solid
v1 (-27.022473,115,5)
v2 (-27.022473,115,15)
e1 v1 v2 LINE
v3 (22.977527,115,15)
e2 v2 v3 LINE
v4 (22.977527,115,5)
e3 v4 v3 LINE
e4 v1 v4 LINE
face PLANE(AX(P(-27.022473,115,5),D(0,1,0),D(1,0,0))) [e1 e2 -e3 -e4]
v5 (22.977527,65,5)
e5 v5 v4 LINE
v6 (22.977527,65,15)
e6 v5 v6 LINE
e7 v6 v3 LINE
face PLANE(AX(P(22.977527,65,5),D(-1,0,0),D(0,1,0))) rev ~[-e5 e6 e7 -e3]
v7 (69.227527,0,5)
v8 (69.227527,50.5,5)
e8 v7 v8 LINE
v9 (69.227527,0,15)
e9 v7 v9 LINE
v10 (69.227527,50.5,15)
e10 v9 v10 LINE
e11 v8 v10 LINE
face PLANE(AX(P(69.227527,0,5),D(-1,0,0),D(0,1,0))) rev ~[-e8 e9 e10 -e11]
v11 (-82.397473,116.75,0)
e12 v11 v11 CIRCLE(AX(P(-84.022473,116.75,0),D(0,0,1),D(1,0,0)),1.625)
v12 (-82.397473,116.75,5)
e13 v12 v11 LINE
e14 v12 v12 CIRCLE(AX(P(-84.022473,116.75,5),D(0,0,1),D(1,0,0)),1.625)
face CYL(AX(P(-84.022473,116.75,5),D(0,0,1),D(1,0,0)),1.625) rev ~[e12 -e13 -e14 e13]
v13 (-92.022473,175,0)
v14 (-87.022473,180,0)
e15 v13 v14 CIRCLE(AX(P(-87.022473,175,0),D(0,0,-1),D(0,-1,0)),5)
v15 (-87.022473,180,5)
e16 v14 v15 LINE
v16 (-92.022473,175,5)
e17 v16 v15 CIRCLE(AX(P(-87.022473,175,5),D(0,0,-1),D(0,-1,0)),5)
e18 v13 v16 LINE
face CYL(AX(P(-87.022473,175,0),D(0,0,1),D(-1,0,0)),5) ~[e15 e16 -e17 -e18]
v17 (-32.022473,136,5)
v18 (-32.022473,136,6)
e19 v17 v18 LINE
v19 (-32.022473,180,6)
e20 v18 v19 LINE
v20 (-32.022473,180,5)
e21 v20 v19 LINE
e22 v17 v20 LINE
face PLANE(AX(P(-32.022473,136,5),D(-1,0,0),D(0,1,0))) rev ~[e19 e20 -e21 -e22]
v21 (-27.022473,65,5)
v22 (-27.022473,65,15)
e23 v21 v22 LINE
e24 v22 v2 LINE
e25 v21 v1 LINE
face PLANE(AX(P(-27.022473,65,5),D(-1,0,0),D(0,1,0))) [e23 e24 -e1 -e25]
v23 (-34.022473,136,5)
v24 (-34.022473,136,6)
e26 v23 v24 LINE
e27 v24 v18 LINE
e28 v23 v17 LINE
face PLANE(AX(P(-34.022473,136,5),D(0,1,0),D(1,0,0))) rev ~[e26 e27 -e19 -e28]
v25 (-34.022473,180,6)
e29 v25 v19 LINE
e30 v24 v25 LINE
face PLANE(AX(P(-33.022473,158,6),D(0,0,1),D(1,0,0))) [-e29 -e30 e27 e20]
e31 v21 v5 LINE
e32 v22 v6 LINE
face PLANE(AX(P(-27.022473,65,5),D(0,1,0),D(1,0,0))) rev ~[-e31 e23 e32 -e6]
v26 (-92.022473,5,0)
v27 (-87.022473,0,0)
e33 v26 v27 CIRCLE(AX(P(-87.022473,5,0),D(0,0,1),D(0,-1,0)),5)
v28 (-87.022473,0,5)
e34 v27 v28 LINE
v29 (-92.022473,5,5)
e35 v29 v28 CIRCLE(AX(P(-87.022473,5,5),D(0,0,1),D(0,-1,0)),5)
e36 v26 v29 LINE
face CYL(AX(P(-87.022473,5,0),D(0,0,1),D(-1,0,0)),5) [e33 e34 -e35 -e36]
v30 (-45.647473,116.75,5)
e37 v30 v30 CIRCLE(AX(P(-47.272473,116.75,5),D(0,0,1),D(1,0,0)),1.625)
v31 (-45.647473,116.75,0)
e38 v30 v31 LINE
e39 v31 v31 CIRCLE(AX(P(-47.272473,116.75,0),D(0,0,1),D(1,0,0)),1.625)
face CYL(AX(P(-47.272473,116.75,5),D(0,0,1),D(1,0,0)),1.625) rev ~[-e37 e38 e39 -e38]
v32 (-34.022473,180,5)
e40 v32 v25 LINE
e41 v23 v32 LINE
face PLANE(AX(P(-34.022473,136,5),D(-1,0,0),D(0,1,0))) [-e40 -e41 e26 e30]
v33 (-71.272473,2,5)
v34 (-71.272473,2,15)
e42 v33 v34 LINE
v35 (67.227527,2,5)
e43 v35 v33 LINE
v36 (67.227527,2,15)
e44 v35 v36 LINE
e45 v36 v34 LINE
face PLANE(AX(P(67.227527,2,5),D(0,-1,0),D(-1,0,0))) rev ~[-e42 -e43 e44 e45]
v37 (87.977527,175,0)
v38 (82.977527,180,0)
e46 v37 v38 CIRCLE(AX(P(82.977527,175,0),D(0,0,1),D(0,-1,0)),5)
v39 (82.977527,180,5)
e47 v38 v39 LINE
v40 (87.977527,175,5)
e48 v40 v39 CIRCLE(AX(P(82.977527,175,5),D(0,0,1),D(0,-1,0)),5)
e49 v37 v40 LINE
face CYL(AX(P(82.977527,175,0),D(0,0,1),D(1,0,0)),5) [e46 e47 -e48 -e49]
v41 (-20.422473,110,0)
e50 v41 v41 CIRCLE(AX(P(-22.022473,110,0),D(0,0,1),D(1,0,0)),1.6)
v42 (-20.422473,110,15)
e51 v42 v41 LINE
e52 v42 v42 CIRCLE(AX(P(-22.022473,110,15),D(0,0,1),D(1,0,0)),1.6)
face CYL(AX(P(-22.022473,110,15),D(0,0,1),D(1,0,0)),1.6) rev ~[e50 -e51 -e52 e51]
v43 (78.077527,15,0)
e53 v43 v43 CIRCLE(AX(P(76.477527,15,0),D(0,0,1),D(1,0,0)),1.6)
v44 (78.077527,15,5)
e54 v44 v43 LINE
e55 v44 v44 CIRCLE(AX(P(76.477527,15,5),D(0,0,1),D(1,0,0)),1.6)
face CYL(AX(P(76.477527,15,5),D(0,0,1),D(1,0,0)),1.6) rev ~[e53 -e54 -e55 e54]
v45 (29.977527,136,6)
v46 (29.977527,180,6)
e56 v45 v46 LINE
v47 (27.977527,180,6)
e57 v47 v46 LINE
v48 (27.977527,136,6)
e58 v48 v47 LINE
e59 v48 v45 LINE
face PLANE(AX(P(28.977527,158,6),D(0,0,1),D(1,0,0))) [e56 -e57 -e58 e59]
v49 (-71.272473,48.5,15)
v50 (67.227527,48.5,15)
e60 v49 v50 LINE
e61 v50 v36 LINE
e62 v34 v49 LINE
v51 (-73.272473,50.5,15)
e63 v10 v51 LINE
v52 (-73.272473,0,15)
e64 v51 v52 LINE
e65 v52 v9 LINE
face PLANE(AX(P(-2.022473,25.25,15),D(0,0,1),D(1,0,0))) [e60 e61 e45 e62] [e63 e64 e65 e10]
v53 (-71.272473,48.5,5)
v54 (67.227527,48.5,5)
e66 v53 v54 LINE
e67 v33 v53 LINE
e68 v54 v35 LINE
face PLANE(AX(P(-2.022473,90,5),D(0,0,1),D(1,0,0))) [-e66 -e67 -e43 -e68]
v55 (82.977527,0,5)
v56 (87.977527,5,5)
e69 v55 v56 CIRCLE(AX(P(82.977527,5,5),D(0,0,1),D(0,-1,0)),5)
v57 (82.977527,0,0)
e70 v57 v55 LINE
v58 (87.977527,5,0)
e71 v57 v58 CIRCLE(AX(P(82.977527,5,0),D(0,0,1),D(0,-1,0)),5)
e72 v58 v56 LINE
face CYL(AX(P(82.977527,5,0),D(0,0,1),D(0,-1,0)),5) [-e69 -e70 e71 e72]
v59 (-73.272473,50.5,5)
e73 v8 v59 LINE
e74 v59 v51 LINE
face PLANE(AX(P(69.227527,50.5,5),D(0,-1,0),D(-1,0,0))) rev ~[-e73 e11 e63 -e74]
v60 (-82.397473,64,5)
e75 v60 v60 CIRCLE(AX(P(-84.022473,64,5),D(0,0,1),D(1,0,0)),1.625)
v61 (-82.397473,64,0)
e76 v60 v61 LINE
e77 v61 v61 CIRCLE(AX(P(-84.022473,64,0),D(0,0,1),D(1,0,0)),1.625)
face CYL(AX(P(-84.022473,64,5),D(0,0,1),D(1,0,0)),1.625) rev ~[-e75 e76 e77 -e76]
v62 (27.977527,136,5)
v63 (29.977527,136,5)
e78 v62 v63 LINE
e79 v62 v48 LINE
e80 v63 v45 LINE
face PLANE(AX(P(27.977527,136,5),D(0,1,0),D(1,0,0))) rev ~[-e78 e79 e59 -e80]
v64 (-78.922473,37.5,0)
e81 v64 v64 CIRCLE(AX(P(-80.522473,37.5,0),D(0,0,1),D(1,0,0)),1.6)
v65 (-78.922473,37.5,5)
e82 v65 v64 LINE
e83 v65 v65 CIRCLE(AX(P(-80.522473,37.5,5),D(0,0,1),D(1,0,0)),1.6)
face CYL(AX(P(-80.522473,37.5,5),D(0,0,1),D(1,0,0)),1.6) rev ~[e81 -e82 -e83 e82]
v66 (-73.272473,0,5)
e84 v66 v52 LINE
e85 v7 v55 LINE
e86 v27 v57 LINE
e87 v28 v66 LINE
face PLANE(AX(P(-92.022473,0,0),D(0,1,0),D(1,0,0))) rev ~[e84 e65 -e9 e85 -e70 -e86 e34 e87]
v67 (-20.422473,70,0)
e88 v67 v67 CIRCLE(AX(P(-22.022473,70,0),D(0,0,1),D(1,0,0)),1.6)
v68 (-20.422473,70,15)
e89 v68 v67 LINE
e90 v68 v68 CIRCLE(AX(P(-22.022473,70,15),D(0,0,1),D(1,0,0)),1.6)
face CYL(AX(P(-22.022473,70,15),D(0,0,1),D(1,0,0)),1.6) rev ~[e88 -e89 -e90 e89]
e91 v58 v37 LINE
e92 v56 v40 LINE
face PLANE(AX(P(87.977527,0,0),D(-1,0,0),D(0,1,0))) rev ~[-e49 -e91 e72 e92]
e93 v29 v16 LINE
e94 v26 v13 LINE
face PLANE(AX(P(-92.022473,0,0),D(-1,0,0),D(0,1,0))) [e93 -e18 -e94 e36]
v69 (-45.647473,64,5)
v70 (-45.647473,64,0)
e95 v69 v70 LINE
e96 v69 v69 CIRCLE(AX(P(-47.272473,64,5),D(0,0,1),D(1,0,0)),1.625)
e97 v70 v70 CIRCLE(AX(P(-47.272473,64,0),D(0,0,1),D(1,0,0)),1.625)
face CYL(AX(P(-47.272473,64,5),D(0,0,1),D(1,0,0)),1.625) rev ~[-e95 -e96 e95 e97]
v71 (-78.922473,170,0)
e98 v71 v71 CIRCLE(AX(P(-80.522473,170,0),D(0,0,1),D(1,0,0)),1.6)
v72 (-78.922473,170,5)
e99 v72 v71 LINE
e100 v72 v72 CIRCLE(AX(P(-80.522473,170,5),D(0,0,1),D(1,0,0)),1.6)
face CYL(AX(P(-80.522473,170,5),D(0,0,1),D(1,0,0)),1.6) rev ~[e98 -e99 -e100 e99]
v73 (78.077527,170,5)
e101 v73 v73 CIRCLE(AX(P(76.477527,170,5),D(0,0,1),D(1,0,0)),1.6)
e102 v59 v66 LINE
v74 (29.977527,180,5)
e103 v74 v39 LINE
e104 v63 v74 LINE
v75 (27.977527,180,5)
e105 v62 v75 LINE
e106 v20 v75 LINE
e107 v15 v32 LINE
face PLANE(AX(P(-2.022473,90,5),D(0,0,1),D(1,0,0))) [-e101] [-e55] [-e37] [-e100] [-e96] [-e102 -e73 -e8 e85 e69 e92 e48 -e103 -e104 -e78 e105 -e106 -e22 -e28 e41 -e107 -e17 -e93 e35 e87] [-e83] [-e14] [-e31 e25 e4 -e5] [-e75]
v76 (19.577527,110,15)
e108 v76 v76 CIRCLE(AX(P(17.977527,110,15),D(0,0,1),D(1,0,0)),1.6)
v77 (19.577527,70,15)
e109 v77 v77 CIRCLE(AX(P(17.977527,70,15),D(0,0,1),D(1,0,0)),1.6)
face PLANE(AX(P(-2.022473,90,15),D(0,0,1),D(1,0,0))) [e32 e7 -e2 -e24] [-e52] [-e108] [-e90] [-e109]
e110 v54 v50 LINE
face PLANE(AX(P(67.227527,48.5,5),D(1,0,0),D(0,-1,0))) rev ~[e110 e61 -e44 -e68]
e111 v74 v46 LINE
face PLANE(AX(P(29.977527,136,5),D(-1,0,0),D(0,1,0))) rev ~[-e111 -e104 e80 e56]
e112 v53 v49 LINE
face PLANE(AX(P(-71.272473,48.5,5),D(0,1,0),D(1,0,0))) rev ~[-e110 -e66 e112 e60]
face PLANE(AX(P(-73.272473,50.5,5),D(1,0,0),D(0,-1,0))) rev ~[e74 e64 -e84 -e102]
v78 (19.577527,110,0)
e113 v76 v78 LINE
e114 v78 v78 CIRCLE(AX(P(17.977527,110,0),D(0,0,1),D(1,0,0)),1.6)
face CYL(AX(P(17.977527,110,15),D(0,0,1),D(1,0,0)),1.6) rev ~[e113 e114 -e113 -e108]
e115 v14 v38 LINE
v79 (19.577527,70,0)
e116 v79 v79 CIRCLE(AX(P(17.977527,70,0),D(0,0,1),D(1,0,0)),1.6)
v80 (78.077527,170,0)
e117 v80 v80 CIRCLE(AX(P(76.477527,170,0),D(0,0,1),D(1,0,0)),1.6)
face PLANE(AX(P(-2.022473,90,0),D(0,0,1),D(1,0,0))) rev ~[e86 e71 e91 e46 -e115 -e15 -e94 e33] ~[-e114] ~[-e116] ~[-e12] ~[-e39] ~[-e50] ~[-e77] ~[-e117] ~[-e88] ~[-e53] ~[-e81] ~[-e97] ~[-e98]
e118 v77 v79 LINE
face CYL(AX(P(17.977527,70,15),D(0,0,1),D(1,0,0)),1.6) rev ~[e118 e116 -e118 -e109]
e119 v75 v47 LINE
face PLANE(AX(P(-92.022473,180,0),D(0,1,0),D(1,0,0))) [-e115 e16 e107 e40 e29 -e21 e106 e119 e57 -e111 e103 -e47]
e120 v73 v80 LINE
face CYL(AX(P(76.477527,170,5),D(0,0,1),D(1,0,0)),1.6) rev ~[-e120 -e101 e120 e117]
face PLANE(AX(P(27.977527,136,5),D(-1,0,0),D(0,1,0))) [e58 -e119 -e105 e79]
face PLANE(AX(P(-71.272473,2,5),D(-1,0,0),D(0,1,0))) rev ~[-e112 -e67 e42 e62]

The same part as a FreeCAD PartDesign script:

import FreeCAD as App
import Part
import Sketcher
from FreeCAD import Vector
Q = App.Units.Quantity


def edges_at(feature, points):
    """Names of the edges that pass closest to the given points."""
    edges = feature.Shape.Edges
    near = lambda p: min(range(len(edges)), key=lambda i: edges[i].distToShape(Part.Vertex(*p))[0])
    return sorted({f"Edge{near(p) + 1}" for p in points})

doc = App.newDocument("Part")
body = doc.addObject("PartDesign::Body", "Body")

# Sketch on XY plane
sketch1 = body.newObject("Sketcher::SketchObject", "Sketch")
sketch1.AttachmentSupport = (doc.getObject("XY_Plane"), [""])
sketch1.MapMode = "FlatFace"
sketch1.addGeometry([
    Part.LineSegment(Vector(-92, 180, 0), Vector(-92, 0, 0)),
    Part.LineSegment(Vector(-92, 0, 0), Vector(88, 0, 0)),
    Part.LineSegment(Vector(88, 0, 0), Vector(88, 180, 0)),
    Part.LineSegment(Vector(88, 180, 0), Vector(-92, 180, 0)),
], False)
sketch1.addConstraint([
    Sketcher.Constraint("Coincident", 0, 2, 1, 1),
    Sketcher.Constraint("Coincident", 1, 2, 2, 1),
    Sketcher.Constraint("Coincident", 2, 2, 3, 1),
    Sketcher.Constraint("Coincident", 3, 2, 0, 1),
    Sketcher.Constraint("Vertical", 0),
    Sketcher.Constraint("Horizontal", 1),
    Sketcher.Constraint("Vertical", 2),
    Sketcher.Constraint("Horizontal", 3),
    Sketcher.Constraint("PointOnObject", 0, 2, -1),
    Sketcher.Constraint("Equal", 3, 0),
    Sketcher.Constraint("DistanceX", 1, 1, 1, 2, Q("180 mm")),
    Sketcher.Constraint("DistanceX", 0, 2, -1, 1, Q("92.022473 mm")),
])
pad1 = body.newObject("PartDesign::Pad", "Pad")
pad1.Profile = sketch1
pad1.Length = 5
doc.recompute()

fillet = body.newObject("PartDesign::Fillet", "Fillet")
fillet.Base = (pad1, edges_at(pad1, [
    (87.978, 0, 2.5),
    (-92.022, 180, 2.5),
    (-92.022, 0, 2.5),
    (87.978, 180, 2.5),
]))
fillet.Radius = 5

# Sketch on XY plane
sketch2 = body.newObject("Sketcher::SketchObject", "Sketch001")
sketch2.AttachmentSupport = (doc.getObject("XY_Plane"), [""])
sketch2.MapMode = "FlatFace"
sketch2.AttachmentOffset = App.Placement(Vector(0, 0, 5), App.Rotation())
sketch2.addGeometry([
    Part.Circle(Vector(-80.5, 170, 0), Vector(0, 0, 1), 1.6),
    Part.Circle(Vector(76.5, 170, 0), Vector(0, 0, 1), 1.6),
    Part.Circle(Vector(76.5, 15, 0), Vector(0, 0, 1), 1.6),
    Part.Circle(Vector(-80.5, 37.5, 0), Vector(0, 0, 1), 1.6),
], False)
sketch2.addConstraint([
    Sketcher.Constraint("Equal", 0, 1),
    Sketcher.Constraint("Equal", 1, 2),
    Sketcher.Constraint("Equal", 2, 3),
    Sketcher.Constraint("Horizontal", 0, 3, 1, 3),
    Sketcher.Constraint("Vertical", 1, 3, 2, 3),
    Sketcher.Constraint("Vertical", 0, 3, 3, 3),
    Sketcher.Constraint("Diameter", 0, Q("3.2 mm")),
    Sketcher.Constraint("DistanceY", -1, 1, 0, 3, Q("170 mm")),
    Sketcher.Constraint("DistanceY", -1, 1, 2, 3, Q("15 mm")),
    Sketcher.Constraint("DistanceX", 0, 3, 1, 3, Q("157 mm")),
    Sketcher.Constraint("DistanceY", -1, 1, 3, 3, Q("37.5 mm")),
    Sketcher.Constraint("DistanceX", 0, 3, -1, 1, Q("80.522473 mm")),
])
pocket1 = body.newObject("PartDesign::Pocket", "Pocket")
pocket1.Profile = sketch2
pocket1.Length = 5

# Sketch on XY plane
sketch3 = body.newObject("Sketcher::SketchObject", "Sketch002")
sketch3.AttachmentSupport = (doc.getObject("XY_Plane"), [""])
sketch3.MapMode = "FlatFace"
sketch3.AttachmentOffset = App.Placement(Vector(0, 0, 5), App.Rotation())
sketch3.addGeometry([
    Part.Circle(Vector(-84, 64, 0), Vector(0, 0, 1), 1.6),
    Part.Circle(Vector(-84, 116.8, 0), Vector(0, 0, 1), 1.6),
    Part.Circle(Vector(-47.3, 64, 0), Vector(0, 0, 1), 1.6),
    Part.Circle(Vector(-47.3, 116.8, 0), Vector(0, 0, 1), 1.6),
], False)
sketch3.addConstraint([
    Sketcher.Constraint("Equal", 0, 1),
    Sketcher.Constraint("Equal", 1, 2),
    Sketcher.Constraint("Equal", 2, 3),
    Sketcher.Constraint("Horizontal", 0, 3, 2, 3),
    Sketcher.Constraint("Horizontal", 1, 3, 3, 3),
    Sketcher.Constraint("Vertical", 0, 3, 1, 3),
    Sketcher.Constraint("Vertical", 2, 3, 3, 3),
    Sketcher.Constraint("Diameter", 0, Q("3.25 mm")),
    Sketcher.Constraint("DistanceY", -1, 1, 0, 3, Q("64 mm")),
    Sketcher.Constraint("DistanceY", -1, 1, 1, 3, Q("116.75 mm")),
    Sketcher.Constraint("DistanceX", 0, 3, 2, 3, Q("36.75 mm")),
    Sketcher.Constraint("DistanceX", 0, 3, -1, 1, Q("84.022473 mm")),
])
pocket2 = body.newObject("PartDesign::Pocket", "Pocket001")
pocket2.Profile = sketch3
pocket2.Length = 5

# Sketch on XY plane
sketch4 = body.newObject("Sketcher::SketchObject", "Sketch003")
sketch4.AttachmentSupport = (doc.getObject("XY_Plane"), [""])
sketch4.MapMode = "FlatFace"
sketch4.AttachmentOffset = App.Placement(Vector(0, 0, 5), App.Rotation())
sketch4.addGeometry([
    Part.LineSegment(Vector(-27, 115, 0), Vector(-27, 65, 0)),
    Part.LineSegment(Vector(-27, 65, 0), Vector(23, 65, 0)),
    Part.LineSegment(Vector(23, 65, 0), Vector(23, 115, 0)),
    Part.LineSegment(Vector(23, 115, 0), Vector(-27, 115, 0)),
], False)
sketch4.addConstraint([
    Sketcher.Constraint("Coincident", 0, 2, 1, 1),
    Sketcher.Constraint("Coincident", 1, 2, 2, 1),
    Sketcher.Constraint("Coincident", 2, 2, 3, 1),
    Sketcher.Constraint("Coincident", 3, 2, 0, 1),
    Sketcher.Constraint("Vertical", 0),
    Sketcher.Constraint("Horizontal", 1),
    Sketcher.Constraint("Vertical", 2),
    Sketcher.Constraint("Horizontal", 3),
    Sketcher.Constraint("Equal", 3, 0),
    Sketcher.Constraint("DistanceX", 1, 1, 1, 2, Q("50 mm")),
    Sketcher.Constraint("DistanceY", -1, 1, 0, 2, Q("65 mm")),
    Sketcher.Constraint("DistanceX", 0, 2, -1, 1, Q("27.022473 mm")),
])
pad2 = body.newObject("PartDesign::Pad", "Pad001")
pad2.Profile = sketch4
pad2.Length = 10

# Sketch on XY plane
sketch5 = body.newObject("Sketcher::SketchObject", "Sketch004")
sketch5.AttachmentSupport = (doc.getObject("XY_Plane"), [""])
sketch5.MapMode = "FlatFace"
sketch5.AttachmentOffset = App.Placement(Vector(0, 0, 5), App.Rotation())
sketch5.addGeometry([
    Part.LineSegment(Vector(69, 50, 0), Vector(-73, 50, 0)),  # 0
    Part.LineSegment(Vector(-73, 50, 0), Vector(-73, 0, 0)),  # 1
    Part.LineSegment(Vector(-73, 0, 0), Vector(69, 0, 0)),  # 2
    Part.LineSegment(Vector(69, 0, 0), Vector(69, 50, 0)),  # 3
    Part.LineSegment(Vector(-71, 2, 0), Vector(-71, 48, 0)),  # 4
    Part.LineSegment(Vector(-71, 48, 0), Vector(67, 48, 0)),  # 5
    Part.LineSegment(Vector(67, 48, 0), Vector(67, 2, 0)),  # 6
    Part.LineSegment(Vector(67, 2, 0), Vector(-71, 2, 0)),  # 7
], False)
sketch5.addConstraint([
    Sketcher.Constraint("Coincident", 0, 2, 1, 1),
    Sketcher.Constraint("Coincident", 1, 2, 2, 1),
    Sketcher.Constraint("Coincident", 2, 2, 3, 1),
    Sketcher.Constraint("Coincident", 3, 2, 0, 1),
    Sketcher.Constraint("Coincident", 4, 2, 5, 1),
    Sketcher.Constraint("Coincident", 5, 2, 6, 1),
    Sketcher.Constraint("Coincident", 6, 2, 7, 1),
    Sketcher.Constraint("Coincident", 7, 2, 4, 1),
    Sketcher.Constraint("Horizontal", 0),
    Sketcher.Constraint("Vertical", 1),
    Sketcher.Constraint("Horizontal", 2),
    Sketcher.Constraint("Vertical", 3),
    Sketcher.Constraint("Vertical", 4),
    Sketcher.Constraint("Horizontal", 5),
    Sketcher.Constraint("Vertical", 6),
    Sketcher.Constraint("Horizontal", 7),
    Sketcher.Constraint("PointOnObject", 1, 2, -1),
    Sketcher.Constraint("DistanceX", 0, 2, 0, 1, Q("142.5 mm")),
    Sketcher.Constraint("DistanceX", 5, 1, 5, 2, Q("138.5 mm")),
    Sketcher.Constraint("DistanceY", 1, 2, 1, 1, Q("50.5 mm")),
    Sketcher.Constraint("DistanceY", 4, 1, 4, 2, Q("46.5 mm")),
    Sketcher.Constraint("DistanceY", -1, 1, 6, 2, Q("2 mm")),
    Sketcher.Constraint("DistanceX", 0, 2, 4, 2, Q("2 mm")),
    Sketcher.Constraint("DistanceX", 0, 2, -1, 1, Q("73.272473 mm")),
])
pad3 = body.newObject("PartDesign::Pad", "Pad002")
pad3.Profile = sketch5
pad3.Length = 10

# Sketch on XY plane
sketch6 = body.newObject("Sketcher::SketchObject", "Sketch005")
sketch6.AttachmentSupport = (doc.getObject("XY_Plane"), [""])
sketch6.MapMode = "FlatFace"
sketch6.AttachmentOffset = App.Placement(Vector(0, 0, 15), App.Rotation())
sketch6.addGeometry([
    Part.Circle(Vector(-22, 70, 0), Vector(0, 0, 1), 1.6),
    Part.Circle(Vector(18, 70, 0), Vector(0, 0, 1), 1.6),
    Part.Circle(Vector(18, 110, 0), Vector(0, 0, 1), 1.6),
    Part.Circle(Vector(-22, 110, 0), Vector(0, 0, 1), 1.6),
], False)
sketch6.addConstraint([
    Sketcher.Constraint("Equal", 0, 1),
    Sketcher.Constraint("Equal", 1, 2),
    Sketcher.Constraint("Equal", 2, 3),
    Sketcher.Constraint("Horizontal", 0, 3, 1, 3),
    Sketcher.Constraint("Horizontal", 2, 3, 3, 3),
    Sketcher.Constraint("Vertical", 1, 3, 2, 3),
    Sketcher.Constraint("Vertical", 0, 3, 3, 3),
    Sketcher.Constraint("Diameter", 0, Q("3.2 mm")),
    Sketcher.Constraint("DistanceY", -1, 1, 0, 3, Q("70 mm")),
    Sketcher.Constraint("DistanceY", -1, 1, 2, 3, Q("110 mm")),
    Sketcher.Constraint("DistanceX", 0, 3, 1, 3, Q("40 mm")),
    Sketcher.Constraint("DistanceX", 0, 3, -1, 1, Q("22.022473 mm")),
])
pocket3 = body.newObject("PartDesign::Pocket", "Pocket002")
pocket3.Profile = sketch6
pocket3.Length = 25

# Sketch on XY plane
sketch7 = body.newObject("Sketcher::SketchObject", "Sketch006")
sketch7.AttachmentSupport = (doc.getObject("XY_Plane"), [""])
sketch7.MapMode = "FlatFace"
sketch7.AttachmentOffset = App.Placement(Vector(0, 0, 5), App.Rotation())
sketch7.addGeometry([
    Part.LineSegment(Vector(-34, 180, 0), Vector(-34, 136, 0)),  # 0
    Part.LineSegment(Vector(-34, 136, 0), Vector(-32, 136, 0)),  # 1
    Part.LineSegment(Vector(-32, 136, 0), Vector(-32, 180, 0)),  # 2
    Part.LineSegment(Vector(-32, 180, 0), Vector(-34, 180, 0)),  # 3
    Part.LineSegment(Vector(28, 180, 0), Vector(28, 136, 0)),  # 4
    Part.LineSegment(Vector(28, 136, 0), Vector(30, 136, 0)),  # 5
    Part.LineSegment(Vector(30, 136, 0), Vector(30, 180, 0)),  # 6
    Part.LineSegment(Vector(30, 180, 0), Vector(28, 180, 0)),  # 7
], False)
sketch7.addConstraint([
    Sketcher.Constraint("Coincident", 0, 2, 1, 1),
    Sketcher.Constraint("Coincident", 1, 2, 2, 1),
    Sketcher.Constraint("Coincident", 2, 2, 3, 1),
    Sketcher.Constraint("Coincident", 3, 2, 0, 1),
    Sketcher.Constraint("Coincident", 4, 2, 5, 1),
    Sketcher.Constraint("Coincident", 5, 2, 6, 1),
    Sketcher.Constraint("Coincident", 6, 2, 7, 1),
    Sketcher.Constraint("Coincident", 7, 2, 4, 1),
    Sketcher.Constraint("Vertical", 0),
    Sketcher.Constraint("Horizontal", 1),
    Sketcher.Constraint("Vertical", 2),
    Sketcher.Constraint("Horizontal", 3),
    Sketcher.Constraint("Vertical", 4),
    Sketcher.Constraint("Horizontal", 5),
    Sketcher.Constraint("Vertical", 6),
    Sketcher.Constraint("Horizontal", 7),
    Sketcher.Constraint("Horizontal", 1, 2, 4, 2),
    Sketcher.Constraint("Horizontal", 3, 2, 6, 2),
    Sketcher.Constraint("Equal", 3, 5),
    Sketcher.Constraint("DistanceX", 1, 1, 1, 2, Q("2 mm")),
    Sketcher.Constraint("DistanceY", 0, 2, 0, 1, Q("44 mm")),
    Sketcher.Constraint("DistanceY", -1, 1, 0, 2, Q("136 mm")),
    Sketcher.Constraint("DistanceX", 1, 2, 4, 2, Q("60 mm")),
    Sketcher.Constraint("DistanceX", 0, 2, -1, 1, Q("34.022473 mm")),
])
pad4 = body.newObject("PartDesign::Pad", "Pad003")
pad4.Profile = sketch7
pad4.Length = 1

doc.recompute()
